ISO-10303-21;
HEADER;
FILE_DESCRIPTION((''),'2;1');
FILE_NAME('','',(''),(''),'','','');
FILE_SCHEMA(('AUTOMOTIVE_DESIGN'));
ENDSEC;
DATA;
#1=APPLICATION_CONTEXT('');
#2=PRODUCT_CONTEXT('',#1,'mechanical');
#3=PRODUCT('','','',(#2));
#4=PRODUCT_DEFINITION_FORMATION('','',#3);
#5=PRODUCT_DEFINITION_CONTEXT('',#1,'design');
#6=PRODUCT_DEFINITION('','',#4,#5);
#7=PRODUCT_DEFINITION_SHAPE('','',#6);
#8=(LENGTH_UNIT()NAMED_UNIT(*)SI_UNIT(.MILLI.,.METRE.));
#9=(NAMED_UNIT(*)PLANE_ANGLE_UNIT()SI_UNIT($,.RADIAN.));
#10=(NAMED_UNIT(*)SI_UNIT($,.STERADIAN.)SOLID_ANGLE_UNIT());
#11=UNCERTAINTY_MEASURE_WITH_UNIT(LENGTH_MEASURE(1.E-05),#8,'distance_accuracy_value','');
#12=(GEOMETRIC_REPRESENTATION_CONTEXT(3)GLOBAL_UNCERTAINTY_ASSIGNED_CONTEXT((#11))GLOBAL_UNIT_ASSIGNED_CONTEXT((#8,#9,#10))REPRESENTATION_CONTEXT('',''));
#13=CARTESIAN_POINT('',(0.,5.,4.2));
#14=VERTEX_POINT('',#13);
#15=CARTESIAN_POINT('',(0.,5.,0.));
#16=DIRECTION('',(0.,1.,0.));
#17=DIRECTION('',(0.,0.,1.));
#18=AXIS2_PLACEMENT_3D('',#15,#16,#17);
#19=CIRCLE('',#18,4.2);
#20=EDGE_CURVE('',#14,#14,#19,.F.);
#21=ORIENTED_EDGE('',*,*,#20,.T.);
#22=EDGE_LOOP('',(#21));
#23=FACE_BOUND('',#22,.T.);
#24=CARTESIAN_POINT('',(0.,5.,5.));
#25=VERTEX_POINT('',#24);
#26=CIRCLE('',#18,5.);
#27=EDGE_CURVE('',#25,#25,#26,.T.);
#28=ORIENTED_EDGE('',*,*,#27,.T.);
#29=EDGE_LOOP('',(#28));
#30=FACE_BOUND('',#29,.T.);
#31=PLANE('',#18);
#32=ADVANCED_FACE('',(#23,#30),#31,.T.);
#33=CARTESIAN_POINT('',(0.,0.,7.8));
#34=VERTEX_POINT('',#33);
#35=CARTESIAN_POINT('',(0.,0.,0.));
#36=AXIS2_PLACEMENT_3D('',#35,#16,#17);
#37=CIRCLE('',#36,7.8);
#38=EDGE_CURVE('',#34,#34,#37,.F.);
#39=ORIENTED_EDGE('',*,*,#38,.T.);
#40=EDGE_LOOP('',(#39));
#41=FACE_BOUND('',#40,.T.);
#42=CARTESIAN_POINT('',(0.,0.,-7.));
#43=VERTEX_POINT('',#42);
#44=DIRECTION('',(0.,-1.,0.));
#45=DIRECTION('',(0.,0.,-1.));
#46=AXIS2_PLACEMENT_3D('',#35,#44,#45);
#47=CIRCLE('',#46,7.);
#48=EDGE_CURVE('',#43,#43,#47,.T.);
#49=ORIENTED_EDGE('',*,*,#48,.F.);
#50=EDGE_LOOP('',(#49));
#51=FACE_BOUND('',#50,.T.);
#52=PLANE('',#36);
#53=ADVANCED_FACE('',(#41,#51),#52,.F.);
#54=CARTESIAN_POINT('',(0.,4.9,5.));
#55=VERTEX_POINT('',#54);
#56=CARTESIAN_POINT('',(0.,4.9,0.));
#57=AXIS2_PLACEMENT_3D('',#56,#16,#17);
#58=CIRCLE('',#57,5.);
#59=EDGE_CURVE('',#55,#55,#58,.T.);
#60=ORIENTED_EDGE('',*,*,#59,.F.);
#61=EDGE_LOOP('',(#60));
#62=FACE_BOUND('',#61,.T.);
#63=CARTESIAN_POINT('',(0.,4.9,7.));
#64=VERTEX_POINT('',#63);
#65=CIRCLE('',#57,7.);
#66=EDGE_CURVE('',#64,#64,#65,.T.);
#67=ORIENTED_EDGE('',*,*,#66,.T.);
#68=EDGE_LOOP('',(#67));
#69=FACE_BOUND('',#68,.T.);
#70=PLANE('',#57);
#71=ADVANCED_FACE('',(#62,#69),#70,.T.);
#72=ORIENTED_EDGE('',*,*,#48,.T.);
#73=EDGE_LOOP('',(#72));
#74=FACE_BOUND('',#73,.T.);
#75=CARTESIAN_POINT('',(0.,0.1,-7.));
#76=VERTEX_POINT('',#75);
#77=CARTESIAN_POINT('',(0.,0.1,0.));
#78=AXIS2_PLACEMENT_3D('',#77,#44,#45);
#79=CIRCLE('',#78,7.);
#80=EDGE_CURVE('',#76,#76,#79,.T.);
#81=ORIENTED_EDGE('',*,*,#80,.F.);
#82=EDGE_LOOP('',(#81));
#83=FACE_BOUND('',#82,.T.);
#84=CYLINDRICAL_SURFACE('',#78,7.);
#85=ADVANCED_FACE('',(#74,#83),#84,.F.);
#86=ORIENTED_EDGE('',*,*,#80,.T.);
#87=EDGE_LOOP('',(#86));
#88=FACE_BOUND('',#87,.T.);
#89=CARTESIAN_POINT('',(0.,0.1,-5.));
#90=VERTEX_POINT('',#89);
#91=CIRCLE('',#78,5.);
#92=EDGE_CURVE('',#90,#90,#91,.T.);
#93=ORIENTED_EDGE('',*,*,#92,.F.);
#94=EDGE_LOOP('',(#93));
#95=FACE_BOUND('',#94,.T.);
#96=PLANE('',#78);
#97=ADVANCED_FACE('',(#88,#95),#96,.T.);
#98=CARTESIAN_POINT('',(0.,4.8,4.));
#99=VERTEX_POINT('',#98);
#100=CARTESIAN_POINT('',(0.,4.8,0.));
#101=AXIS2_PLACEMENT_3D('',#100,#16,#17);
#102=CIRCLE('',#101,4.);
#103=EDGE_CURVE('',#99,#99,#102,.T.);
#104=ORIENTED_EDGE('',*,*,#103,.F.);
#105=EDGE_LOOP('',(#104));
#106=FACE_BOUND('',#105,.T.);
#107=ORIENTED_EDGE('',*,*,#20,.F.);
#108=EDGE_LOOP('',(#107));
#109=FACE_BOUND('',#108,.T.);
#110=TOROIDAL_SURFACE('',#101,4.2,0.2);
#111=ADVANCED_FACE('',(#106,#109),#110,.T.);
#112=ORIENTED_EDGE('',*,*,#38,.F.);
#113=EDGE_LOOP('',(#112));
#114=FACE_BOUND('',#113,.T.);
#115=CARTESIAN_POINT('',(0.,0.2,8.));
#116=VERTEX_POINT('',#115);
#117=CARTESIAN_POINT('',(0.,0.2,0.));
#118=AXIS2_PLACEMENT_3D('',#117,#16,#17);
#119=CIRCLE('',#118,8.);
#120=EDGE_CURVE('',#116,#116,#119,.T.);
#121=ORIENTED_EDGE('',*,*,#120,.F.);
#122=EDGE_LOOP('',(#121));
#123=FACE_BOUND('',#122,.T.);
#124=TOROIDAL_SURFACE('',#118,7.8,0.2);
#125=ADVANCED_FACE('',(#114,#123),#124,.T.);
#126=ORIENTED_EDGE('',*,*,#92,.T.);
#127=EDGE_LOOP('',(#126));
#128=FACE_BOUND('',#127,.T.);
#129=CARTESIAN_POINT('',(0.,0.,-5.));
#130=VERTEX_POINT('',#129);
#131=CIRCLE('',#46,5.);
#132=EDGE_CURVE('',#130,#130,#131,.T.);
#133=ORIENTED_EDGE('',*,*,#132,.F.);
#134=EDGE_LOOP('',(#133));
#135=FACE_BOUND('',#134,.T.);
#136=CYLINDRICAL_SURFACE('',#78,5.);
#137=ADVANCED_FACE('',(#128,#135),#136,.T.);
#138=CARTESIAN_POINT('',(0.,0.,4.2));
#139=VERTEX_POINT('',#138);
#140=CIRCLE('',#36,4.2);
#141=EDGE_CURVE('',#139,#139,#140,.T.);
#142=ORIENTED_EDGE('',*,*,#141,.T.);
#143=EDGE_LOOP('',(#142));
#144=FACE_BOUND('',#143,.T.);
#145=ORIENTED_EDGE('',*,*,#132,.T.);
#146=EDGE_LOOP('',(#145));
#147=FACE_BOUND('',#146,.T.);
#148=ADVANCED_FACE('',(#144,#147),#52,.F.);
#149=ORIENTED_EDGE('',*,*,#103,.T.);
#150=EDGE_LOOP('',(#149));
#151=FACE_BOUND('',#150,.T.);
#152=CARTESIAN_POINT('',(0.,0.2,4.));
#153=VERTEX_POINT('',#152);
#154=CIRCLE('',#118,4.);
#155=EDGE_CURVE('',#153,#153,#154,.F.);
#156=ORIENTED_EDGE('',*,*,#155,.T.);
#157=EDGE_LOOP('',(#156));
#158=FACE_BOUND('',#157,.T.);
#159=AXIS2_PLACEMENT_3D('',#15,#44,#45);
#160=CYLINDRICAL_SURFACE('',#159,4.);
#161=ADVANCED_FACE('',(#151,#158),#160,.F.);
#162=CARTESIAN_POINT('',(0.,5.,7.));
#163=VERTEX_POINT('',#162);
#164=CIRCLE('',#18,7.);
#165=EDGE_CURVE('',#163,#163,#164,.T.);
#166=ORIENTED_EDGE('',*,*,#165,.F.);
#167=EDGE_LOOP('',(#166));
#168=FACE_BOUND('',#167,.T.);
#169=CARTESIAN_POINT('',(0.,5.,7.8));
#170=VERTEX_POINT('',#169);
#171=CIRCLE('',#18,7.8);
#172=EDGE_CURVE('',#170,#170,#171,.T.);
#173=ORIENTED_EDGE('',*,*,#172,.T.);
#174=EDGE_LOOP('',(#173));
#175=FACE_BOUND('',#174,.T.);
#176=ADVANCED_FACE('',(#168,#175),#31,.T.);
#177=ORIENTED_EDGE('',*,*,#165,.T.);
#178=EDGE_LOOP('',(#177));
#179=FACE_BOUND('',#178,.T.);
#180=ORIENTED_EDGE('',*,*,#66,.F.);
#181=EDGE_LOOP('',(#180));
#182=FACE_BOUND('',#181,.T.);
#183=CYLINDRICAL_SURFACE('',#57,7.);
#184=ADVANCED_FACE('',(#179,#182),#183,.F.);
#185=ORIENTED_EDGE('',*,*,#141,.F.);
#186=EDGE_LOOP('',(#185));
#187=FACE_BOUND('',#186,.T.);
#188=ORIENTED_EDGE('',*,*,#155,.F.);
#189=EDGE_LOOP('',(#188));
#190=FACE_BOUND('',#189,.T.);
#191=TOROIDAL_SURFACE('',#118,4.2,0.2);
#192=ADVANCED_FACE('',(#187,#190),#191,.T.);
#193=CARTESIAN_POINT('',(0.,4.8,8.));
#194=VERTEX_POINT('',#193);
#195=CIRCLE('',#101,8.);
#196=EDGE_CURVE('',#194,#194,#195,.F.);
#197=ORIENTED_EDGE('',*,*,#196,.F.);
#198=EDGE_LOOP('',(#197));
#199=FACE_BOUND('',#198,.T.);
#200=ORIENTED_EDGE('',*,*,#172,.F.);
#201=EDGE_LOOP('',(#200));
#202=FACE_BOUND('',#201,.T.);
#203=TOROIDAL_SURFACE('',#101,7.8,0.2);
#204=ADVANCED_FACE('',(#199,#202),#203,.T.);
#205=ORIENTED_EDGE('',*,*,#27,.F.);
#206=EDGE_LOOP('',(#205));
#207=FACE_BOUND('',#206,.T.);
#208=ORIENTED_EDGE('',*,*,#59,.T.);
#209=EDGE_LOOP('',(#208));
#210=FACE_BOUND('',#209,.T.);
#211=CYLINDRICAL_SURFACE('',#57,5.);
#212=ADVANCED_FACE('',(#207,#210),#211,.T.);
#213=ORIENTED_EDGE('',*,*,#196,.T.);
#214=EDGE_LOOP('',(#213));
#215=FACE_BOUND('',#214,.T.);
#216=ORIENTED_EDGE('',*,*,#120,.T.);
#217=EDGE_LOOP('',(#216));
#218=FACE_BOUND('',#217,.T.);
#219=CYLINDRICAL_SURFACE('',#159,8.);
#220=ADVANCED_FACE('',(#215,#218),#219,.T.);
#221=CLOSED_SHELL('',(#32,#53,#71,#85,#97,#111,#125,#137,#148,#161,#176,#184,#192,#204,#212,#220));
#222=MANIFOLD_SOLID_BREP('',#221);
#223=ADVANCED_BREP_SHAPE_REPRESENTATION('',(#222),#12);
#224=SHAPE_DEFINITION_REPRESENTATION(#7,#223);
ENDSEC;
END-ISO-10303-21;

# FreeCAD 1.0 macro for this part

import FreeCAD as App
import Part
import Sketcher
from FreeCAD import Vector


def edges_at(feature, points):
    """Names of the edges that pass closest to the given points."""
    edges = feature.Shape.Edges
    near = lambda p: min(range(len(edges)), key=lambda i: edges[i].distToShape(Part.Vertex(*p))[0])
    return sorted({f"Edge{near(p) + 1}" for p in points})

doc = App.newDocument("Part")
body = doc.addObject("PartDesign::Body", "Body")

sketch1 = body.newObject("Sketcher::SketchObject", "Sketch")
sketch1.AttachmentSupport = (doc.getObject("XZ_Plane"), [""])
sketch1.MapMode = "FlatFace"
sketch1.addGeometry(Part.Circle(Vector(0, 0, 0), Vector(0, 0, 1), 8), False)
sketch1.addGeometry(Part.Circle(Vector(0, 0, 0), Vector(0, 0, 1), 4), False)
sketch1.addConstraint(Sketcher.Constraint("Coincident", 0, 3, -1, 1))
sketch1.addConstraint(Sketcher.Constraint("Coincident", 1, 3, -1, 1))
sketch1.addConstraint(Sketcher.Constraint("Diameter", 0, 16.0))
sketch1.addConstraint(Sketcher.Constraint("Diameter", 1, 8.0))
pad1 = body.newObject("PartDesign::Pad", "Pad")
pad1.Profile = sketch1
pad1.Length = 5
pad1.Reversed = True
doc.recompute()

fillet = body.newObject("PartDesign::Fillet", "Fillet")
fillet.Base = (pad1, edges_at(pad1, [
    (0, 0, -8),
    (0, 5, -8),
    (0, 0, -4),
    (0, 5, -4),
]))
fillet.Radius = 0.2

sketch2 = body.newObject("Sketcher::SketchObject", "Sketch001")
sketch2.AttachmentSupport = (doc.getObject("XZ_Plane"), [""])
sketch2.MapMode = "FlatFace"
sketch2.AttachmentOffset = App.Placement(Vector(0, 0, -5), App.Rotation())
sketch2.addGeometry(Part.Circle(Vector(0, 0, 0), Vector(0, 0, 1), 7), False)
sketch2.addGeometry(Part.Circle(Vector(0, 0, 0), Vector(0, 0, 1), 5), False)
sketch2.addConstraint(Sketcher.Constraint("Coincident", 0, 3, -1, 1))
sketch2.addConstraint(Sketcher.Constraint("Coincident", 1, 3, -1, 1))
sketch2.addConstraint(Sketcher.Constraint("Diameter", 0, 14.0))
sketch2.addConstraint(Sketcher.Constraint("Diameter", 1, 10.0))
pocket1 = body.newObject("PartDesign::Pocket", "Pocket")
pocket1.Profile = sketch2
pocket1.Length = 0.1
pocket1.Reversed = True

sketch3 = body.newObject("Sketcher::SketchObject", "Sketch002")
sketch3.AttachmentSupport = (doc.getObject("XZ_Plane"), [""])
sketch3.MapMode = "FlatFace"
sketch3.AttachmentOffset = App.Placement(Vector(0, 0, -0.1), App.Rotation())
sketch3.addGeometry(Part.Circle(Vector(0, 0, 0), Vector(0, 0, 1), 7), False)
sketch3.addGeometry(Part.Circle(Vector(0, 0, 0), Vector(0, 0, 1), 5), False)
sketch3.addConstraint(Sketcher.Constraint("Coincident", 0, 3, -1, 1))
sketch3.addConstraint(Sketcher.Constraint("Coincident", 1, 3, -1, 1))
sketch3.addConstraint(Sketcher.Constraint("Diameter", 0, 14.0))
sketch3.addConstraint(Sketcher.Constraint("Diameter", 1, 10.0))
pocket2 = body.newObject("PartDesign::Pocket", "Pocket001")
pocket2.Profile = sketch3
pocket2.Length = 0.1
pocket2.Reversed = True

doc.recompute()
